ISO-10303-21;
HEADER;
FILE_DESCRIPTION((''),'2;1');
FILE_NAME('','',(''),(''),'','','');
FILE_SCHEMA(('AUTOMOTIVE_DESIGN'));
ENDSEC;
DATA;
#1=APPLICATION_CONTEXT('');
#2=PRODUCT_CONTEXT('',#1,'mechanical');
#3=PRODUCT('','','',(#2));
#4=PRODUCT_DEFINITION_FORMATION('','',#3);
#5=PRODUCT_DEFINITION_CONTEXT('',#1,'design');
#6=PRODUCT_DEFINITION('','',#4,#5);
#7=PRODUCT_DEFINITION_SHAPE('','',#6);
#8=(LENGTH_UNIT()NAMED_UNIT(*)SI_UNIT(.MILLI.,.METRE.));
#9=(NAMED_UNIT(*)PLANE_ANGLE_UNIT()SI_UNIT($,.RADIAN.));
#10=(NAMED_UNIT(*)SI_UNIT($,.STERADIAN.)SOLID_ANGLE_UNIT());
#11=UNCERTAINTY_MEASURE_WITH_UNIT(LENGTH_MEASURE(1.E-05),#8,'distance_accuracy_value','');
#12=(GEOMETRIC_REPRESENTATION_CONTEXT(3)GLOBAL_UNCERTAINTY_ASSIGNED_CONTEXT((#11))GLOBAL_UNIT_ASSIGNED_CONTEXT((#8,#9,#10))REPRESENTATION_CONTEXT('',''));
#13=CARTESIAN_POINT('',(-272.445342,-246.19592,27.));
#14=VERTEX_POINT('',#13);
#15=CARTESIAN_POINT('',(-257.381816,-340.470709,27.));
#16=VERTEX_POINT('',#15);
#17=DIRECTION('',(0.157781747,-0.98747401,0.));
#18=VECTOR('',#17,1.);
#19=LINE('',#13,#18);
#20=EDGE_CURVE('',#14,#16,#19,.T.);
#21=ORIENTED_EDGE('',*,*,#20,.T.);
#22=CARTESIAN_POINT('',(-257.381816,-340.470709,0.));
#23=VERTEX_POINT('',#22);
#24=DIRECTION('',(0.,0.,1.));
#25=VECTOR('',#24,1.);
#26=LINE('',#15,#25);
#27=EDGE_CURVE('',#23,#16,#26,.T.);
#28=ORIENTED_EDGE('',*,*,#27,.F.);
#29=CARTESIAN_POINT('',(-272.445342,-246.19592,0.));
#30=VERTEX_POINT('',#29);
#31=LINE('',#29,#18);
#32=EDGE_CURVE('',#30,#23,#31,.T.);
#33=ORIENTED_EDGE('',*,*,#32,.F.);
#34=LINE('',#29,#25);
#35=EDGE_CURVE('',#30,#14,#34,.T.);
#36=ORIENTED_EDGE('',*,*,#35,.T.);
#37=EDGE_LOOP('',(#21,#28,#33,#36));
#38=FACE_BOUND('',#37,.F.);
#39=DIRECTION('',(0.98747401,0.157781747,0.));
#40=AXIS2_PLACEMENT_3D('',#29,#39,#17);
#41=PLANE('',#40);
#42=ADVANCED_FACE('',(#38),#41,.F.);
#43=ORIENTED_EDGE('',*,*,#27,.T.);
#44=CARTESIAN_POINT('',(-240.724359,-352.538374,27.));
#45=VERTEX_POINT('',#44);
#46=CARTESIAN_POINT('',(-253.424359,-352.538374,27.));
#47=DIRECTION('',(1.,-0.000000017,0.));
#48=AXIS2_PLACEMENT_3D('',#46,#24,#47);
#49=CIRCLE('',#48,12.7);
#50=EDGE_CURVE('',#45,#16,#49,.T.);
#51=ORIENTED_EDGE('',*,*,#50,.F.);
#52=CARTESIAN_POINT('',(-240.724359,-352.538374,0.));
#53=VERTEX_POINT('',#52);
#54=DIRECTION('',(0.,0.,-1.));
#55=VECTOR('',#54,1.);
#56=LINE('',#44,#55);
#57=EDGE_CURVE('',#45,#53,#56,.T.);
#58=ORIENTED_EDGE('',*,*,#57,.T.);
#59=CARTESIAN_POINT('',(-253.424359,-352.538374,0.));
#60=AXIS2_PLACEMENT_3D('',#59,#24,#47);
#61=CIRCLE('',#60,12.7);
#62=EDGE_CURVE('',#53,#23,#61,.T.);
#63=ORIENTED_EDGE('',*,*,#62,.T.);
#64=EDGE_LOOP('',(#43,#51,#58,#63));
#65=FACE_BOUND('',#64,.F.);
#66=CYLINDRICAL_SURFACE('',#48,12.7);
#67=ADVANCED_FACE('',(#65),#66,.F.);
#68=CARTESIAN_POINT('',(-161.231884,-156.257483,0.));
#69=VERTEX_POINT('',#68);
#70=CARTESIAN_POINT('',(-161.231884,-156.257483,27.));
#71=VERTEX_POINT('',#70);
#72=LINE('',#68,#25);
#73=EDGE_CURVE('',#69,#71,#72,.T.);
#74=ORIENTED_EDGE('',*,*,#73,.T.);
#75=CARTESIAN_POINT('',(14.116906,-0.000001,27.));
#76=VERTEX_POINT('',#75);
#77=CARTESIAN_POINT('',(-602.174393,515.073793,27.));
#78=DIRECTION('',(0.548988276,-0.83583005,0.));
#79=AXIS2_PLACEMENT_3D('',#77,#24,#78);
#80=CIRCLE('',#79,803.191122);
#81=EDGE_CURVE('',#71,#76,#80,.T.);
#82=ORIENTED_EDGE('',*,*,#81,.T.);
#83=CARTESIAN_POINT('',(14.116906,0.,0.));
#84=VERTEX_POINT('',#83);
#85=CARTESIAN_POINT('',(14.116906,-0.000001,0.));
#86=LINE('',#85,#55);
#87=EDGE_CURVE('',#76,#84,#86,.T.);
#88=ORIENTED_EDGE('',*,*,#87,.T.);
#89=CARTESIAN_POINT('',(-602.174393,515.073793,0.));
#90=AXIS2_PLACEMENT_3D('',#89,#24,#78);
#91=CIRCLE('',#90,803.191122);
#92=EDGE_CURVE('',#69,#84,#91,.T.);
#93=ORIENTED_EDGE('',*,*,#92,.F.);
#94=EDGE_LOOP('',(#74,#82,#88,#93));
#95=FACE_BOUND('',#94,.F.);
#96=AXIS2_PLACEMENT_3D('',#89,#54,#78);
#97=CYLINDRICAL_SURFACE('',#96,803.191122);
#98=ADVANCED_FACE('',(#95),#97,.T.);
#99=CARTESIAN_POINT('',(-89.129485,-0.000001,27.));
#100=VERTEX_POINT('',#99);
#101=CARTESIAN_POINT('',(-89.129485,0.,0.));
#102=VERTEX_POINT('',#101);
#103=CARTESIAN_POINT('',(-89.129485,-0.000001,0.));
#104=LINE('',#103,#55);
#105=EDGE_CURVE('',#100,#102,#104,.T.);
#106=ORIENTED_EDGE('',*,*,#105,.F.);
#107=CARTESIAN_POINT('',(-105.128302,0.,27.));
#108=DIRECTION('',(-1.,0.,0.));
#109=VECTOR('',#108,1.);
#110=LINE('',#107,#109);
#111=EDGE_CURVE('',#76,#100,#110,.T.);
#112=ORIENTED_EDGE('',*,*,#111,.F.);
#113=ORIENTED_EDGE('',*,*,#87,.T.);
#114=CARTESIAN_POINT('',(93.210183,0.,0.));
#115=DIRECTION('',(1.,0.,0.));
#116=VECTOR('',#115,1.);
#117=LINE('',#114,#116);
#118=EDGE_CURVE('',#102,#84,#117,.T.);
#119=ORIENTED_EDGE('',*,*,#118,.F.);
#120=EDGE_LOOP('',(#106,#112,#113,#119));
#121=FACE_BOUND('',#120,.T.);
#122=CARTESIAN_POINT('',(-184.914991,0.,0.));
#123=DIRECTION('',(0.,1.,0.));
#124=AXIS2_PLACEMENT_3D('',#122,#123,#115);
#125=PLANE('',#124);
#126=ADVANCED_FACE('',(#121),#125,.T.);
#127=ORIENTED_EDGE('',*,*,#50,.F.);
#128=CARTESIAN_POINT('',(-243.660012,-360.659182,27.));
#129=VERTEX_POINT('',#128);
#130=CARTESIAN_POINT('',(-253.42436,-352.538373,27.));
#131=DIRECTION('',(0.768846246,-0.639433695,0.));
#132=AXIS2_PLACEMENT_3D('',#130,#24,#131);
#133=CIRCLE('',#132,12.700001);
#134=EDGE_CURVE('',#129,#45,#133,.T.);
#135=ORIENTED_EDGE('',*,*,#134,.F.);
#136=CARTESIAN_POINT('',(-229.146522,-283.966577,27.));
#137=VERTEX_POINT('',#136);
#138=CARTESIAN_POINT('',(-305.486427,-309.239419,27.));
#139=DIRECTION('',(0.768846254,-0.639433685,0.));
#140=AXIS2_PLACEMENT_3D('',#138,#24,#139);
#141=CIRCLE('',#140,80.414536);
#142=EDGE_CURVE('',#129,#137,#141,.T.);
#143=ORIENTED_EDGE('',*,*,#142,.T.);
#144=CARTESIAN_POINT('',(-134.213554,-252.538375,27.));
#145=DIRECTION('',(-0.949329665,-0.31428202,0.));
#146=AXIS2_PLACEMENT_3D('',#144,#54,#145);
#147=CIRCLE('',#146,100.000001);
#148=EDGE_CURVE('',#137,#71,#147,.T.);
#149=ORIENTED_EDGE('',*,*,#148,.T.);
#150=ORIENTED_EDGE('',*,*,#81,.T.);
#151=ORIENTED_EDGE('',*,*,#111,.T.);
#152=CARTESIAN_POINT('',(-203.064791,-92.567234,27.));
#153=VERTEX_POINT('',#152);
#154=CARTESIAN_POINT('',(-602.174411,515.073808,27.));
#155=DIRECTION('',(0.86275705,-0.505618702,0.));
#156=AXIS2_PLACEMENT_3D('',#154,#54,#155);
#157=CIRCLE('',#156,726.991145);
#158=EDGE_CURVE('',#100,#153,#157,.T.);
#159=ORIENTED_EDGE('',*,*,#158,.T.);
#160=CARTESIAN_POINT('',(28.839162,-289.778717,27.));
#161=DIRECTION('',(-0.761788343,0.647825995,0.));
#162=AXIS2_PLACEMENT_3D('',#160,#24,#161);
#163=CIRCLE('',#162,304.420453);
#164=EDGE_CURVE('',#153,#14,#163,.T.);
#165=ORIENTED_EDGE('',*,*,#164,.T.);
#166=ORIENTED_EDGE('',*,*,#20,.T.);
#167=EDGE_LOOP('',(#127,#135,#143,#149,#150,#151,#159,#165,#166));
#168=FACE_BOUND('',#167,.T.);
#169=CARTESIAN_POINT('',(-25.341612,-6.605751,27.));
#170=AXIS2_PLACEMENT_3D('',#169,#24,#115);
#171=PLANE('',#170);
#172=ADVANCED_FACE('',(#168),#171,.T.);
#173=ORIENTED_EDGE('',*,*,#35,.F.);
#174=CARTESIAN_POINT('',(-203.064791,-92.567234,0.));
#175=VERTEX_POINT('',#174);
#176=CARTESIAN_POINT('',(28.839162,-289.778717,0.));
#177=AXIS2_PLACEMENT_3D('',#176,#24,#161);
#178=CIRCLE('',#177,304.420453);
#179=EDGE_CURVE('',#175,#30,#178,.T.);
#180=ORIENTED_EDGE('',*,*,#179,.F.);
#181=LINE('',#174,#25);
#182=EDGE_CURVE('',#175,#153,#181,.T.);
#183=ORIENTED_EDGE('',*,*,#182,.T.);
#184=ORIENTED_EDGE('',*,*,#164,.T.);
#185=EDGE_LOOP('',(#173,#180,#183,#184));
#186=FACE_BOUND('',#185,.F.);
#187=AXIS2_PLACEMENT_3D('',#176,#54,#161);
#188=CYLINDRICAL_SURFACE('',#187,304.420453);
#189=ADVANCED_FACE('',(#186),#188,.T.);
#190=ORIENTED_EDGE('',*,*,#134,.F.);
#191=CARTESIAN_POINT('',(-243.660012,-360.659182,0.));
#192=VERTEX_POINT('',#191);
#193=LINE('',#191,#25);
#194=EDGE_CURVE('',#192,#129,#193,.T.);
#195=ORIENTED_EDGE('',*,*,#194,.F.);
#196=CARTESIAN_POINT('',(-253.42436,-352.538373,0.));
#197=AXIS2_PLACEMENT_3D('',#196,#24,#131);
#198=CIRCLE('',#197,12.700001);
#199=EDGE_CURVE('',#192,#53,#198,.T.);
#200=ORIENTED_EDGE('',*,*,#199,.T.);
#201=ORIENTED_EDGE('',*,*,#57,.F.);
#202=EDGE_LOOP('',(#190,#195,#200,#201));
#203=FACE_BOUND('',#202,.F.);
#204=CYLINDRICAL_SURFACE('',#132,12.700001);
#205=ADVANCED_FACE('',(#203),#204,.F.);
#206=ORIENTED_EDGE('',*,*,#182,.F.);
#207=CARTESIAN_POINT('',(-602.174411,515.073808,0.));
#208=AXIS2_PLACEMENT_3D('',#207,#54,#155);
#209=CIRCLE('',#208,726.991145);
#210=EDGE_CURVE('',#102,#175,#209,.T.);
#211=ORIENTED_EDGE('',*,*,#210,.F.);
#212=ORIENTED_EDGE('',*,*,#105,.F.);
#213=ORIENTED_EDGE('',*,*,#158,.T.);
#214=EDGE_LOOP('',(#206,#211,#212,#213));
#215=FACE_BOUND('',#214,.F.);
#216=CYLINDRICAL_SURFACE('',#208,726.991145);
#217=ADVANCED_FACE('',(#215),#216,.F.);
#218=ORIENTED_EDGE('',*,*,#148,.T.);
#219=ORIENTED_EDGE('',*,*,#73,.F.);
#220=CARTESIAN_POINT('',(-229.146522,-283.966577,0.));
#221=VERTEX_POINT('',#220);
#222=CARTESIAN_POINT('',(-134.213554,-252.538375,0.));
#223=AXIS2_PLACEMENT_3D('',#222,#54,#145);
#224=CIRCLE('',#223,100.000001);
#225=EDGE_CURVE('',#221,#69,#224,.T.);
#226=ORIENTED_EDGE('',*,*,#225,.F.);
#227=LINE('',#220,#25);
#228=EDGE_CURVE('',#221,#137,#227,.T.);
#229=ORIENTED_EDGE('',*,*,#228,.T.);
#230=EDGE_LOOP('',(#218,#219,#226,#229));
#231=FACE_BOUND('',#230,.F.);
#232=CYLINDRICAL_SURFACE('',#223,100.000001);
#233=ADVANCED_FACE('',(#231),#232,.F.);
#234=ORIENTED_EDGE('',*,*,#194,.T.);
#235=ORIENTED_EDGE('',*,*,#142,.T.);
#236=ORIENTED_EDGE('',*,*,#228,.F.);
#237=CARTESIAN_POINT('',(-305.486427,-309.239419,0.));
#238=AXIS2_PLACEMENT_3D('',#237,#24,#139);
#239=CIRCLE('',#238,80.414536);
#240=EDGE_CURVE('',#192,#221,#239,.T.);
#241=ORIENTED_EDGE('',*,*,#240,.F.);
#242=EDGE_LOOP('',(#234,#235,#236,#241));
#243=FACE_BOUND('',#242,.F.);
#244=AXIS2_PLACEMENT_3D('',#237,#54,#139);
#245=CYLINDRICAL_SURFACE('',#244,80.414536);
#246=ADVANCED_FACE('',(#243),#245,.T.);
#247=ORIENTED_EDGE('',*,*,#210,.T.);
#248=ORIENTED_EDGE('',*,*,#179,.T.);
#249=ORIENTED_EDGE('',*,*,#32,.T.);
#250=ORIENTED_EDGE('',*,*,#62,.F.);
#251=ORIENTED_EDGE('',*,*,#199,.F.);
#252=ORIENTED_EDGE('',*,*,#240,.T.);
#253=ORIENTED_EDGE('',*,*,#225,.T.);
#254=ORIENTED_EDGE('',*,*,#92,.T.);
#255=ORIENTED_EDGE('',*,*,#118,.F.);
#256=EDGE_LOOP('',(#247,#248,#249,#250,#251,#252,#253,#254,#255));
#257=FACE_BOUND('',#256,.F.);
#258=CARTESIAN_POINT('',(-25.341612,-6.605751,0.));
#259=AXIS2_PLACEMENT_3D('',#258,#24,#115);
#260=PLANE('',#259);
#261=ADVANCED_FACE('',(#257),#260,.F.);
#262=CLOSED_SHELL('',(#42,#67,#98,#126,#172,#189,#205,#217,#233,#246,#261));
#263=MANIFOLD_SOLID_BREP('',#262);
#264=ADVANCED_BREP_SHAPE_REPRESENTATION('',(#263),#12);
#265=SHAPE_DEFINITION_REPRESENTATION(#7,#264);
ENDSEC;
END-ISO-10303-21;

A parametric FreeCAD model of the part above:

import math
import FreeCAD as App
import Part
import Sketcher
Q = App.Units.Quantity


def add_polygon(sketch, points):
    """Adds a closed chain of lines whose ends are joined by coincident constraints."""
    first, n = sketch.GeometryCount, len(points)
    for a, b in zip(points, points[1:] + points[:1]):
        sketch.addGeometry(Part.LineSegment(App.Vector(*a, 0), App.Vector(*b, 0)), False)
    for i in range(n):
        sketch.addConstraint(Sketcher.Constraint("Coincident", first + i, 2, first + (i + 1) % n, 1))

doc = App.newDocument("Part")
body = doc.addObject("PartDesign::Body", "Body")

# Sketch on XY plane
sketch1 = doc.addObject("Sketcher::SketchObject", "Sketch")
body.addObject(sketch1)
sketch1.AttachmentSupport = (doc.XY_Plane, [""])
sketch1.MapMode = "FlatFace"
sketch1.addGeometry([
    Part.ArcOfCircle(Part.Circle(App.Vector(199.96564, 105.824941, 0), App.Vector(0, 0, 1), 99.999999), math.radians(78.442878), math.radians(165.520897)),  # 0
    Part.LineSegment(App.Vector(220.000119, 203.797485, 0), App.Vector(331.982739, 180.898076, 0)),  # 1
    Part.ArcOfCircle(Part.Circle(App.Vector(209.76524, 21.155157, 0), App.Vector(0, 0, 1), 201.134078), math.radians(52.580806), math.radians(75.53116)),  # 2
    Part.ArcOfCircle(Part.Circle(App.Vector(252.889351, 226.419713, 0), App.Vector(0, 0, 1), 12.7), math.radians(-171.542581), math.radians(-55.846507)),  # 3
    Part.ArcOfCircle(Part.Circle(App.Vector(199.965641, 105.824939, 0), App.Vector(0, 0, 1), 125.4), math.radians(71.224277), math.radians(121.52076)),  # 4
    Part.ArcOfCircle(Part.Circle(App.Vector(-108.551272, 608.869602, 0), App.Vector(0, 0, 1), 464.715767), math.radians(-69.106498), math.radians(-58.479242)),  # 5
    Part.ArcOfCircle(Part.Circle(App.Vector(79.827399, 115.3867, 0), App.Vector(0, 0, 1), 63.500002), math.radians(110.893501), math.radians(149.627568)),  # 6
    Part.ArcOfCircle(Part.Circle(App.Vector(-602.174411, 515.073808, 0), App.Vector(0, 0, 1), 726.991145), math.radians(-56.702367), math.radians(-30.372432)),  # 7
    Part.ArcOfCircle(Part.Circle(App.Vector(28.839162, -289.778717, 0), App.Vector(0, 0, 1), 304.420453), math.radians(139.622109), math.radians(171.768883)),  # 8
    Part.LineSegment(App.Vector(-272.445342, -246.19592, 0), App.Vector(-253.424359, -365.238374, 0)),  # 9
    Part.ArcOfCircle(Part.Circle(App.Vector(-253.424362, -352.538368, 0), App.Vector(0, 0, 1), 12.700006), math.radians(-89.999986), math.radians(-39.749618)),  # 10
    Part.ArcOfCircle(Part.Circle(App.Vector(-305.486427, -309.239419, 0), App.Vector(0, 0, 1), 80.414536), math.radians(-39.749604), math.radians(18.317475)),  # 11
    Part.ArcOfCircle(Part.Circle(App.Vector(-134.213554, -252.538375, 0), App.Vector(0, 0, 1), 100.000001), math.radians(105.675174), math.radians(198.317475)),  # 12
    Part.ArcOfCircle(Part.Circle(App.Vector(-602.174393, 515.073793, 0), App.Vector(0, 0, 1), 803.191122), math.radians(-56.702368), math.radians(-28.580918)),  # 13
], False)
sketch1.addConstraint([
    Sketcher.Constraint("Tangent", 0, 1, 1, 1),
    Sketcher.Constraint("Coincident", 1, 2, 2, 1),
    Sketcher.Constraint("Coincident", 2, 2, 3, 2),
    Sketcher.Constraint("Coincident", 3, 1, 4, 1),
    Sketcher.Constraint("Tangent", 4, 2, 5, 2),
    Sketcher.Constraint("Tangent", 5, 1, 6, 1),
    Sketcher.Constraint("Tangent", 6, 2, 7, 2),
    Sketcher.Constraint("Coincident", 7, 1, 8, 1),
    Sketcher.Constraint("Coincident", 8, 2, 9, 1),
    Sketcher.Constraint("Coincident", 9, 2, 10, 1),
    Sketcher.Constraint("Tangent", 10, 2, 11, 1),
    Sketcher.Constraint("Tangent", 11, 2, 12, 2),
    Sketcher.Constraint("Coincident", 12, 1, 13, 1),
    Sketcher.Constraint("Coincident", 13, 2, 0, 2),
    Sketcher.Constraint("Coincident", 4, 3, 0, 3),
    Sketcher.Constraint("Radius", 0, Q("99.999999 mm")),
    Sketcher.Constraint("Radius", 12, Q("100.000001 mm")),
    Sketcher.Constraint("Radius", 3, Q("12.7 mm")),
    Sketcher.Constraint("Radius", 4, Q("125.4 mm")),
    Sketcher.Constraint("Radius", 6, Q("63.500002 mm")),
    Sketcher.Constraint("Distance", 1, Q("114.300001 mm")),
    Sketcher.Constraint("DistanceY", 9, 2, 12, 3, Q("112.699999 mm")),
    Sketcher.Constraint("DistanceY", -1, 1, 2, 2, Q("215.909999 mm")),
    Sketcher.Constraint("Radius", 2, Q("201.134078 mm")),
    Sketcher.Constraint("Radius", 13, Q("803.191122 mm")),
    Sketcher.Constraint("DistanceX", 10, 3, 0, 3, Q("453.390002 mm")),
    Sketcher.Constraint("Radius", 5, Q("464.715767 mm")),
    Sketcher.Constraint("Radius", 7, Q("726.991145 mm")),
    Sketcher.Constraint("Radius", 8, Q("304.420453 mm")),
    Sketcher.Constraint("Radius", 10, Q("12.700006 mm")),
    Sketcher.Constraint("Radius", 11, Q("80.414536 mm")),
    Sketcher.Constraint("DistanceX", -1, 1, 6, 3, Q("79.827399 mm")),
    Sketcher.Constraint("DistanceY", -1, 1, 6, 3, Q("115.3867 mm")),
    Sketcher.Constraint("DistanceX", 0, 3, 2, 3, Q("9.7996 mm")),
    Sketcher.Constraint("DistanceY", 11, 3, 8, 3, Q("19.460702 mm")),
    Sketcher.Constraint("DistanceX", 0, 3, 1, 2, Q("132.017099 mm")),
    Sketcher.Constraint("DistanceY", 4, 2, 3, 1, Q("11.8296 mm")),
    Sketcher.Constraint("DistanceY", 11, 3, 8, 2, Q("63.043499 mm")),
    Sketcher.Constraint("DistanceX", -1, 1, 0, 3, Q("199.96564 mm")),
    Sketcher.Constraint("DistanceY", -1, 1, 0, 3, Q("105.824941 mm")),
    Sketcher.Constraint("DistanceX", 7, 3, -1, 1, Q("602.174411 mm")),
    Sketcher.Constraint("DistanceX", -1, 1, 8, 3, Q("28.839162 mm")),
    Sketcher.Constraint("DistanceY", 11, 3, -1, 1, Q("309.239419 mm")),
    Sketcher.Constraint("DistanceX", 9, 2, -1, 1, Q("253.424359 mm")),
    Sketcher.Constraint("DistanceX", 10, 2, -1, 1, Q("243.660012 mm")),
    Sketcher.Constraint("DistanceX", -1, 1, 13, 2, Q("103.141751 mm")),
    Sketcher.Constraint("DistanceX", 13, 3, 5, 3, Q("493.623121 mm")),
])
pad1 = doc.addObject("PartDesign::Pad", "Pad")
body.addObject(pad1)
pad1.Profile = sketch1
pad1.Length = 27

# Sketch on XY plane
sketch2 = doc.addObject("Sketcher::SketchObject", "Sketch001")
body.addObject(sketch2)
sketch2.AttachmentSupport = (doc.XY_Plane, [""])
sketch2.MapMode = "FlatFace"
sketch2.AttachmentOffset = App.Placement(App.Vector(0, 0, 27), App.Rotation())
sketch2.addGeometry([
    Part.ArcOfCircle(Part.Circle(App.Vector(-253, -353, 0), App.Vector(0, 0, 1), 13), math.radians(0), math.radians(270)),
    Part.ArcOfCircle(Part.Circle(App.Vector(-253, -353, 0), App.Vector(0, 0, 1), 13), math.radians(-90), math.radians(-40)),
    Part.ArcOfCircle(Part.Circle(App.Vector(-253, -353, 0), App.Vector(0, 0, 1), 13), math.radians(-40), math.radians(0)),
], False)
sketch2.addConstraint([
    Sketcher.Constraint("Tangent", 0, 2, 1, 1),
    Sketcher.Constraint("Tangent", 1, 2, 2, 1),
    Sketcher.Constraint("Tangent", 2, 2, 0, 1),
    Sketcher.Constraint("Horizontal", 0, 3, 2, 2),
    Sketcher.Constraint("Vertical", 2, 3, 0, 2),
    Sketcher.Constraint("Radius", 0, Q("12.7 mm")),
    Sketcher.Constraint("DistanceX", 0, 3, -1, 1, Q("253.424359 mm")),
    Sketcher.Constraint("DistanceX", 1, 2, -1, 1, Q("243.660012 mm")),
    Sketcher.Constraint("DistanceY", 0, 3, -1, 1, Q("352.538374 mm")),
])
pocket1 = doc.addObject("PartDesign::Pocket", "Pocket")
body.addObject(pocket1)
pocket1.Profile = sketch2
pocket1.Length = 29.13629

# Sketch on XY plane
sketch3 = doc.addObject("Sketcher::SketchObject", "Sketch002")
body.addObject(sketch3)
sketch3.AttachmentSupport = (doc.XY_Plane, [""])
sketch3.MapMode = "FlatFace"
add_polygon(sketch3, [(-185, 232), (-185, 0), (371, 0), (371, 232)])  # lines 0-3
sketch3.addConstraint([
    Sketcher.Constraint("Vertical", 0),
    Sketcher.Constraint("Horizontal", 1),
    Sketcher.Constraint("Vertical", 2),
    Sketcher.Constraint("Horizontal", 3),
    Sketcher.Constraint("PointOnObject", 0, 2, -1),
    Sketcher.Constraint("DistanceY", 0, 2, 0, 1, Q("232.422799 mm")),
    Sketcher.Constraint("DistanceX", 1, 1, 1, 2, Q("556.250348 mm")),
    Sketcher.Constraint("DistanceX", 0, 2, -1, 1, Q("184.914991 mm")),
])
pocket2 = doc.addObject("PartDesign::Pocket", "Pocket001")
body.addObject(pocket2)
pocket2.Profile = sketch3
pocket2.Length = 50
pocket2.Reversed = True

doc.recompute()
